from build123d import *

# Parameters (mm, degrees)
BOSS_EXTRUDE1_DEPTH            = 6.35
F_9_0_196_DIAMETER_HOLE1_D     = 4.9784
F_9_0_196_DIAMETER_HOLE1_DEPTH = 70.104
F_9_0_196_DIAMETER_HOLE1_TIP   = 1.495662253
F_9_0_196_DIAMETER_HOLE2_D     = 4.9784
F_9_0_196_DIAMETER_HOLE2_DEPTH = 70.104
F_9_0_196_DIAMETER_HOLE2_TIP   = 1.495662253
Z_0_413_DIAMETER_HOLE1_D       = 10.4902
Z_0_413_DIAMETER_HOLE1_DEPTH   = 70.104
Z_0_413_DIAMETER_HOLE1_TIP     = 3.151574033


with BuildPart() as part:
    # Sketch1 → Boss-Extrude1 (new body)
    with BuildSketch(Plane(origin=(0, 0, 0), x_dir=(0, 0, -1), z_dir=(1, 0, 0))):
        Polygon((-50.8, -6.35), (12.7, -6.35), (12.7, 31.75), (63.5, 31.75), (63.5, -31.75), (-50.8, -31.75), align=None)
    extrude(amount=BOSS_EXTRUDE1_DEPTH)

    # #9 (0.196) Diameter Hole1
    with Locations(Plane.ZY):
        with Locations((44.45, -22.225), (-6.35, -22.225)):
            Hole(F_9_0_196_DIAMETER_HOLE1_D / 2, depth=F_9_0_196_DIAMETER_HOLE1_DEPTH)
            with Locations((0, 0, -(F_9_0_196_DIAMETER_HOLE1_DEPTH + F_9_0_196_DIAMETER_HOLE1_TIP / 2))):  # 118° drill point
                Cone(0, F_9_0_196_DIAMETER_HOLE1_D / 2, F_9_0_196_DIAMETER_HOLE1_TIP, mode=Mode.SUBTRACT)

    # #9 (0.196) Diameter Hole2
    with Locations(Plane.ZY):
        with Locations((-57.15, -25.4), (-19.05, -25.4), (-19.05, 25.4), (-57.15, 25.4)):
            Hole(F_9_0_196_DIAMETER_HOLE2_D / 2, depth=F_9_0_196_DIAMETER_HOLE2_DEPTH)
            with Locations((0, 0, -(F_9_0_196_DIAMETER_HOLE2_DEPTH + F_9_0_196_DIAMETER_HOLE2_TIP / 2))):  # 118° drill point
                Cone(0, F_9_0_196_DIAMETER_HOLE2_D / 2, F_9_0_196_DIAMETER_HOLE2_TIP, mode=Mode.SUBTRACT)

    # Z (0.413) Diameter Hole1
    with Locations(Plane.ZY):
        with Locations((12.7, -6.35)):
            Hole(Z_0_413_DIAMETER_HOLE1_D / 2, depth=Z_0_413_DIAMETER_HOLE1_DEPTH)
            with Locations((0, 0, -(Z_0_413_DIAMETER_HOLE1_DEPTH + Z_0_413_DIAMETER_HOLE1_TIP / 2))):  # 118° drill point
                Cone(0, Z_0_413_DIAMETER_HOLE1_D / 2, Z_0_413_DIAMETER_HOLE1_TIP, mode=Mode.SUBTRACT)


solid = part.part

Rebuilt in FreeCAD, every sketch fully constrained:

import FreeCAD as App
import Part
import Sketcher
Q = App.Units.Quantity

doc = App.newDocument("Part")
body = doc.addObject("PartDesign::Body", "Body")

# Sketch on YZ plane
sketch1 = body.newObject("Sketcher::SketchObject", "Sketch")
sketch1.AttachmentSupport = (doc.getObject("YZ_Plane"), [""])
sketch1.MapMode = "FlatFace"
sketch1.addGeometry(Part.LineSegment(App.Vector(-6, -13, 0), App.Vector(-6, 51, 0)), False)
sketch1.addGeometry(Part.LineSegment(App.Vector(-6, 51, 0), App.Vector(-32, 51, 0)), False)
sketch1.addGeometry(Part.LineSegment(App.Vector(-32, 51, 0), App.Vector(-32, -64, 0)), False)
sketch1.addGeometry(Part.LineSegment(App.Vector(-32, -64, 0), App.Vector(32, -64, 0)), False)
sketch1.addGeometry(Part.LineSegment(App.Vector(32, -64, 0), App.Vector(32, -13, 0)), False)
sketch1.addGeometry(Part.LineSegment(App.Vector(32, -13, 0), App.Vector(-6, -13, 0)), False)
sketch1.addConstraint(Sketcher.Constraint("Coincident", 0, 2, 1, 1))
sketch1.addConstraint(Sketcher.Constraint("Coincident", 1, 2, 2, 1))
sketch1.addConstraint(Sketcher.Constraint("Coincident", 2, 2, 3, 1))
sketch1.addConstraint(Sketcher.Constraint("Coincident", 3, 2, 4, 1))
sketch1.addConstraint(Sketcher.Constraint("Coincident", 4, 2, 5, 1))
sketch1.addConstraint(Sketcher.Constraint("Coincident", 5, 2, 0, 1))
sketch1.addConstraint(Sketcher.Constraint("Vertical", 0))
sketch1.addConstraint(Sketcher.Constraint("Horizontal", 1))
sketch1.addConstraint(Sketcher.Constraint("Vertical", 2))
sketch1.addConstraint(Sketcher.Constraint("Horizontal", 3))
sketch1.addConstraint(Sketcher.Constraint("Vertical", 4))
sketch1.addConstraint(Sketcher.Constraint("Horizontal", 5))
sketch1.addConstraint(Sketcher.Constraint("Equal", 3, 0))
sketch1.addConstraint(Sketcher.Constraint("DistanceX", 1, 2, 1, 1, Q("1 in")))
sketch1.addConstraint(Sketcher.Constraint("DistanceY", 4, 1, 4, 2, Q("2 in")))
sketch1.addConstraint(Sketcher.Constraint("DistanceX", 3, 1, 3, 2, Q("2.5 in")))
sketch1.addConstraint(Sketcher.Constraint("DistanceY", -1, 1, 0, 2, Q("2 in")))
sketch1.addConstraint(Sketcher.Constraint("DistanceX", 0, 2, -1, 1, Q("0.25 in")))
pad1 = body.newObject("PartDesign::Pad", "Pad")
pad1.Profile = sketch1
pad1.Length = Q("0.25 in")

# Sketch on YZ plane
sketch2 = body.newObject("Sketcher::SketchObject", "Sketch001")
sketch2.AttachmentSupport = (doc.getObject("YZ_Plane"), [""])
sketch2.MapMode = "FlatFace"
sketch2.addGeometry(Part.Circle(App.Vector(-22.2, 44.5, 0), App.Vector(0, 0, 1), 2.5), False)
sketch2.addGeometry(Part.Circle(App.Vector(-22.2, -6.3, 0), App.Vector(0, 0, 1), 2.5), False)
sketch2.addConstraint(Sketcher.Constraint("Equal", 0, 1))
sketch2.addConstraint(Sketcher.Constraint("Vertical", 0, 3, 1, 3))
sketch2.addConstraint(Sketcher.Constraint("Diameter", 0, Q("0.196 in")))
sketch2.addConstraint(Sketcher.Constraint("DistanceY", 1, 3, 0, 3, Q("2 in")))
sketch2.addConstraint(Sketcher.Constraint("DistanceY", -1, 1, 0, 3, Q("1.75 in")))
sketch2.addConstraint(Sketcher.Constraint("DistanceX", 0, 3, -1, 1, Q("0.875 in")))
doc.recompute()
hole = body.newObject("PartDesign::Hole", "Hole")
hole.Profile = sketch2
hole.ThreadType = "None"
hole.Diameter = Q("0.196 in")
hole.DepthType = "Dimension"
hole.Depth = Q("2.76 in")
hole.DrillPoint = "Angled"
hole.DrillPointAngle = 118
hole.Reversed = True

# Sketch on YZ plane
sketch3 = body.newObject("Sketcher::SketchObject", "Sketch002")
sketch3.AttachmentSupport = (doc.getObject("YZ_Plane"), [""])
sketch3.MapMode = "FlatFace"
sketch3.addGeometry(Part.Circle(App.Vector(-25.4, -57.1, 0), App.Vector(0, 0, 1), 2.5), False)
sketch3.addGeometry(Part.Circle(App.Vector(-25.4, -19.1, 0), App.Vector(0, 0, 1), 2.5), False)
sketch3.addGeometry(Part.Circle(App.Vector(25.4, -19.1, 0), App.Vector(0, 0, 1), 2.5), False)
sketch3.addGeometry(Part.Circle(App.Vector(25.4, -57.1, 0), App.Vector(0, 0, 1), 2.5), False)
sketch3.addConstraint(Sketcher.Constraint("Equal", 0, 1))
sketch3.addConstraint(Sketcher.Constraint("Equal", 1, 2))
sketch3.addConstraint(Sketcher.Constraint("Equal", 2, 3))
sketch3.addConstraint(Sketcher.Constraint("Symmetric", 1, 3, 2, 3, -2))
sketch3.addConstraint(Sketcher.Constraint("Symmetric", 0, 3, 3, 3, -2))
sketch3.addConstraint(Sketcher.Constraint("Vertical", 0, 3, 1, 3))
sketch3.addConstraint(Sketcher.Constraint("Diameter", 0, Q("0.196 in")))
sketch3.addConstraint(Sketcher.Constraint("DistanceX", 0, 3, -1, 1, Q("1 in")))
sketch3.addConstraint(Sketcher.Constraint("DistanceY", 0, 3, 1, 3, Q("1.5 in")))
sketch3.addConstraint(Sketcher.Constraint("DistanceY", 0, 3, -1, 1, Q("2.25 in")))
doc.recompute()
hole2 = body.newObject("PartDesign::Hole", "Hole001")
hole2.Profile = sketch3
hole2.ThreadType = "None"
hole2.Diameter = Q("0.196 in")
hole2.DepthType = "Dimension"
hole2.Depth = Q("2.76 in")
hole2.DrillPoint = "Angled"
hole2.DrillPointAngle = 118
hole2.Reversed = True

# Sketch on YZ plane
sketch4 = body.newObject("Sketcher::SketchObject", "Sketch003")
sketch4.AttachmentSupport = (doc.getObject("YZ_Plane"), [""])
sketch4.MapMode = "FlatFace"
sketch4.addGeometry(Part.Circle(App.Vector(-6, 13, 0), App.Vector(0, 0, 1), 5), False)
sketch4.addConstraint(Sketcher.Constraint("Diameter", 0, Q("0.413 in")))
sketch4.addConstraint(Sketcher.Constraint("DistanceY", -1, 1, 0, 3, Q("0.5 in")))
sketch4.addConstraint(Sketcher.Constraint("DistanceX", 0, 3, -1, 1, Q("0.25 in")))
doc.recompute()
hole3 = body.newObject("PartDesign::Hole", "Hole002")
hole3.Profile = sketch4
hole3.ThreadType = "None"
hole3.Diameter = Q("0.413 in")
hole3.DepthType = "Dimension"
hole3.Depth = Q("2.76 in")
hole3.DrillPoint = "Angled"
hole3.DrillPointAngle = 118
hole3.Reversed = True

doc.recompute()
